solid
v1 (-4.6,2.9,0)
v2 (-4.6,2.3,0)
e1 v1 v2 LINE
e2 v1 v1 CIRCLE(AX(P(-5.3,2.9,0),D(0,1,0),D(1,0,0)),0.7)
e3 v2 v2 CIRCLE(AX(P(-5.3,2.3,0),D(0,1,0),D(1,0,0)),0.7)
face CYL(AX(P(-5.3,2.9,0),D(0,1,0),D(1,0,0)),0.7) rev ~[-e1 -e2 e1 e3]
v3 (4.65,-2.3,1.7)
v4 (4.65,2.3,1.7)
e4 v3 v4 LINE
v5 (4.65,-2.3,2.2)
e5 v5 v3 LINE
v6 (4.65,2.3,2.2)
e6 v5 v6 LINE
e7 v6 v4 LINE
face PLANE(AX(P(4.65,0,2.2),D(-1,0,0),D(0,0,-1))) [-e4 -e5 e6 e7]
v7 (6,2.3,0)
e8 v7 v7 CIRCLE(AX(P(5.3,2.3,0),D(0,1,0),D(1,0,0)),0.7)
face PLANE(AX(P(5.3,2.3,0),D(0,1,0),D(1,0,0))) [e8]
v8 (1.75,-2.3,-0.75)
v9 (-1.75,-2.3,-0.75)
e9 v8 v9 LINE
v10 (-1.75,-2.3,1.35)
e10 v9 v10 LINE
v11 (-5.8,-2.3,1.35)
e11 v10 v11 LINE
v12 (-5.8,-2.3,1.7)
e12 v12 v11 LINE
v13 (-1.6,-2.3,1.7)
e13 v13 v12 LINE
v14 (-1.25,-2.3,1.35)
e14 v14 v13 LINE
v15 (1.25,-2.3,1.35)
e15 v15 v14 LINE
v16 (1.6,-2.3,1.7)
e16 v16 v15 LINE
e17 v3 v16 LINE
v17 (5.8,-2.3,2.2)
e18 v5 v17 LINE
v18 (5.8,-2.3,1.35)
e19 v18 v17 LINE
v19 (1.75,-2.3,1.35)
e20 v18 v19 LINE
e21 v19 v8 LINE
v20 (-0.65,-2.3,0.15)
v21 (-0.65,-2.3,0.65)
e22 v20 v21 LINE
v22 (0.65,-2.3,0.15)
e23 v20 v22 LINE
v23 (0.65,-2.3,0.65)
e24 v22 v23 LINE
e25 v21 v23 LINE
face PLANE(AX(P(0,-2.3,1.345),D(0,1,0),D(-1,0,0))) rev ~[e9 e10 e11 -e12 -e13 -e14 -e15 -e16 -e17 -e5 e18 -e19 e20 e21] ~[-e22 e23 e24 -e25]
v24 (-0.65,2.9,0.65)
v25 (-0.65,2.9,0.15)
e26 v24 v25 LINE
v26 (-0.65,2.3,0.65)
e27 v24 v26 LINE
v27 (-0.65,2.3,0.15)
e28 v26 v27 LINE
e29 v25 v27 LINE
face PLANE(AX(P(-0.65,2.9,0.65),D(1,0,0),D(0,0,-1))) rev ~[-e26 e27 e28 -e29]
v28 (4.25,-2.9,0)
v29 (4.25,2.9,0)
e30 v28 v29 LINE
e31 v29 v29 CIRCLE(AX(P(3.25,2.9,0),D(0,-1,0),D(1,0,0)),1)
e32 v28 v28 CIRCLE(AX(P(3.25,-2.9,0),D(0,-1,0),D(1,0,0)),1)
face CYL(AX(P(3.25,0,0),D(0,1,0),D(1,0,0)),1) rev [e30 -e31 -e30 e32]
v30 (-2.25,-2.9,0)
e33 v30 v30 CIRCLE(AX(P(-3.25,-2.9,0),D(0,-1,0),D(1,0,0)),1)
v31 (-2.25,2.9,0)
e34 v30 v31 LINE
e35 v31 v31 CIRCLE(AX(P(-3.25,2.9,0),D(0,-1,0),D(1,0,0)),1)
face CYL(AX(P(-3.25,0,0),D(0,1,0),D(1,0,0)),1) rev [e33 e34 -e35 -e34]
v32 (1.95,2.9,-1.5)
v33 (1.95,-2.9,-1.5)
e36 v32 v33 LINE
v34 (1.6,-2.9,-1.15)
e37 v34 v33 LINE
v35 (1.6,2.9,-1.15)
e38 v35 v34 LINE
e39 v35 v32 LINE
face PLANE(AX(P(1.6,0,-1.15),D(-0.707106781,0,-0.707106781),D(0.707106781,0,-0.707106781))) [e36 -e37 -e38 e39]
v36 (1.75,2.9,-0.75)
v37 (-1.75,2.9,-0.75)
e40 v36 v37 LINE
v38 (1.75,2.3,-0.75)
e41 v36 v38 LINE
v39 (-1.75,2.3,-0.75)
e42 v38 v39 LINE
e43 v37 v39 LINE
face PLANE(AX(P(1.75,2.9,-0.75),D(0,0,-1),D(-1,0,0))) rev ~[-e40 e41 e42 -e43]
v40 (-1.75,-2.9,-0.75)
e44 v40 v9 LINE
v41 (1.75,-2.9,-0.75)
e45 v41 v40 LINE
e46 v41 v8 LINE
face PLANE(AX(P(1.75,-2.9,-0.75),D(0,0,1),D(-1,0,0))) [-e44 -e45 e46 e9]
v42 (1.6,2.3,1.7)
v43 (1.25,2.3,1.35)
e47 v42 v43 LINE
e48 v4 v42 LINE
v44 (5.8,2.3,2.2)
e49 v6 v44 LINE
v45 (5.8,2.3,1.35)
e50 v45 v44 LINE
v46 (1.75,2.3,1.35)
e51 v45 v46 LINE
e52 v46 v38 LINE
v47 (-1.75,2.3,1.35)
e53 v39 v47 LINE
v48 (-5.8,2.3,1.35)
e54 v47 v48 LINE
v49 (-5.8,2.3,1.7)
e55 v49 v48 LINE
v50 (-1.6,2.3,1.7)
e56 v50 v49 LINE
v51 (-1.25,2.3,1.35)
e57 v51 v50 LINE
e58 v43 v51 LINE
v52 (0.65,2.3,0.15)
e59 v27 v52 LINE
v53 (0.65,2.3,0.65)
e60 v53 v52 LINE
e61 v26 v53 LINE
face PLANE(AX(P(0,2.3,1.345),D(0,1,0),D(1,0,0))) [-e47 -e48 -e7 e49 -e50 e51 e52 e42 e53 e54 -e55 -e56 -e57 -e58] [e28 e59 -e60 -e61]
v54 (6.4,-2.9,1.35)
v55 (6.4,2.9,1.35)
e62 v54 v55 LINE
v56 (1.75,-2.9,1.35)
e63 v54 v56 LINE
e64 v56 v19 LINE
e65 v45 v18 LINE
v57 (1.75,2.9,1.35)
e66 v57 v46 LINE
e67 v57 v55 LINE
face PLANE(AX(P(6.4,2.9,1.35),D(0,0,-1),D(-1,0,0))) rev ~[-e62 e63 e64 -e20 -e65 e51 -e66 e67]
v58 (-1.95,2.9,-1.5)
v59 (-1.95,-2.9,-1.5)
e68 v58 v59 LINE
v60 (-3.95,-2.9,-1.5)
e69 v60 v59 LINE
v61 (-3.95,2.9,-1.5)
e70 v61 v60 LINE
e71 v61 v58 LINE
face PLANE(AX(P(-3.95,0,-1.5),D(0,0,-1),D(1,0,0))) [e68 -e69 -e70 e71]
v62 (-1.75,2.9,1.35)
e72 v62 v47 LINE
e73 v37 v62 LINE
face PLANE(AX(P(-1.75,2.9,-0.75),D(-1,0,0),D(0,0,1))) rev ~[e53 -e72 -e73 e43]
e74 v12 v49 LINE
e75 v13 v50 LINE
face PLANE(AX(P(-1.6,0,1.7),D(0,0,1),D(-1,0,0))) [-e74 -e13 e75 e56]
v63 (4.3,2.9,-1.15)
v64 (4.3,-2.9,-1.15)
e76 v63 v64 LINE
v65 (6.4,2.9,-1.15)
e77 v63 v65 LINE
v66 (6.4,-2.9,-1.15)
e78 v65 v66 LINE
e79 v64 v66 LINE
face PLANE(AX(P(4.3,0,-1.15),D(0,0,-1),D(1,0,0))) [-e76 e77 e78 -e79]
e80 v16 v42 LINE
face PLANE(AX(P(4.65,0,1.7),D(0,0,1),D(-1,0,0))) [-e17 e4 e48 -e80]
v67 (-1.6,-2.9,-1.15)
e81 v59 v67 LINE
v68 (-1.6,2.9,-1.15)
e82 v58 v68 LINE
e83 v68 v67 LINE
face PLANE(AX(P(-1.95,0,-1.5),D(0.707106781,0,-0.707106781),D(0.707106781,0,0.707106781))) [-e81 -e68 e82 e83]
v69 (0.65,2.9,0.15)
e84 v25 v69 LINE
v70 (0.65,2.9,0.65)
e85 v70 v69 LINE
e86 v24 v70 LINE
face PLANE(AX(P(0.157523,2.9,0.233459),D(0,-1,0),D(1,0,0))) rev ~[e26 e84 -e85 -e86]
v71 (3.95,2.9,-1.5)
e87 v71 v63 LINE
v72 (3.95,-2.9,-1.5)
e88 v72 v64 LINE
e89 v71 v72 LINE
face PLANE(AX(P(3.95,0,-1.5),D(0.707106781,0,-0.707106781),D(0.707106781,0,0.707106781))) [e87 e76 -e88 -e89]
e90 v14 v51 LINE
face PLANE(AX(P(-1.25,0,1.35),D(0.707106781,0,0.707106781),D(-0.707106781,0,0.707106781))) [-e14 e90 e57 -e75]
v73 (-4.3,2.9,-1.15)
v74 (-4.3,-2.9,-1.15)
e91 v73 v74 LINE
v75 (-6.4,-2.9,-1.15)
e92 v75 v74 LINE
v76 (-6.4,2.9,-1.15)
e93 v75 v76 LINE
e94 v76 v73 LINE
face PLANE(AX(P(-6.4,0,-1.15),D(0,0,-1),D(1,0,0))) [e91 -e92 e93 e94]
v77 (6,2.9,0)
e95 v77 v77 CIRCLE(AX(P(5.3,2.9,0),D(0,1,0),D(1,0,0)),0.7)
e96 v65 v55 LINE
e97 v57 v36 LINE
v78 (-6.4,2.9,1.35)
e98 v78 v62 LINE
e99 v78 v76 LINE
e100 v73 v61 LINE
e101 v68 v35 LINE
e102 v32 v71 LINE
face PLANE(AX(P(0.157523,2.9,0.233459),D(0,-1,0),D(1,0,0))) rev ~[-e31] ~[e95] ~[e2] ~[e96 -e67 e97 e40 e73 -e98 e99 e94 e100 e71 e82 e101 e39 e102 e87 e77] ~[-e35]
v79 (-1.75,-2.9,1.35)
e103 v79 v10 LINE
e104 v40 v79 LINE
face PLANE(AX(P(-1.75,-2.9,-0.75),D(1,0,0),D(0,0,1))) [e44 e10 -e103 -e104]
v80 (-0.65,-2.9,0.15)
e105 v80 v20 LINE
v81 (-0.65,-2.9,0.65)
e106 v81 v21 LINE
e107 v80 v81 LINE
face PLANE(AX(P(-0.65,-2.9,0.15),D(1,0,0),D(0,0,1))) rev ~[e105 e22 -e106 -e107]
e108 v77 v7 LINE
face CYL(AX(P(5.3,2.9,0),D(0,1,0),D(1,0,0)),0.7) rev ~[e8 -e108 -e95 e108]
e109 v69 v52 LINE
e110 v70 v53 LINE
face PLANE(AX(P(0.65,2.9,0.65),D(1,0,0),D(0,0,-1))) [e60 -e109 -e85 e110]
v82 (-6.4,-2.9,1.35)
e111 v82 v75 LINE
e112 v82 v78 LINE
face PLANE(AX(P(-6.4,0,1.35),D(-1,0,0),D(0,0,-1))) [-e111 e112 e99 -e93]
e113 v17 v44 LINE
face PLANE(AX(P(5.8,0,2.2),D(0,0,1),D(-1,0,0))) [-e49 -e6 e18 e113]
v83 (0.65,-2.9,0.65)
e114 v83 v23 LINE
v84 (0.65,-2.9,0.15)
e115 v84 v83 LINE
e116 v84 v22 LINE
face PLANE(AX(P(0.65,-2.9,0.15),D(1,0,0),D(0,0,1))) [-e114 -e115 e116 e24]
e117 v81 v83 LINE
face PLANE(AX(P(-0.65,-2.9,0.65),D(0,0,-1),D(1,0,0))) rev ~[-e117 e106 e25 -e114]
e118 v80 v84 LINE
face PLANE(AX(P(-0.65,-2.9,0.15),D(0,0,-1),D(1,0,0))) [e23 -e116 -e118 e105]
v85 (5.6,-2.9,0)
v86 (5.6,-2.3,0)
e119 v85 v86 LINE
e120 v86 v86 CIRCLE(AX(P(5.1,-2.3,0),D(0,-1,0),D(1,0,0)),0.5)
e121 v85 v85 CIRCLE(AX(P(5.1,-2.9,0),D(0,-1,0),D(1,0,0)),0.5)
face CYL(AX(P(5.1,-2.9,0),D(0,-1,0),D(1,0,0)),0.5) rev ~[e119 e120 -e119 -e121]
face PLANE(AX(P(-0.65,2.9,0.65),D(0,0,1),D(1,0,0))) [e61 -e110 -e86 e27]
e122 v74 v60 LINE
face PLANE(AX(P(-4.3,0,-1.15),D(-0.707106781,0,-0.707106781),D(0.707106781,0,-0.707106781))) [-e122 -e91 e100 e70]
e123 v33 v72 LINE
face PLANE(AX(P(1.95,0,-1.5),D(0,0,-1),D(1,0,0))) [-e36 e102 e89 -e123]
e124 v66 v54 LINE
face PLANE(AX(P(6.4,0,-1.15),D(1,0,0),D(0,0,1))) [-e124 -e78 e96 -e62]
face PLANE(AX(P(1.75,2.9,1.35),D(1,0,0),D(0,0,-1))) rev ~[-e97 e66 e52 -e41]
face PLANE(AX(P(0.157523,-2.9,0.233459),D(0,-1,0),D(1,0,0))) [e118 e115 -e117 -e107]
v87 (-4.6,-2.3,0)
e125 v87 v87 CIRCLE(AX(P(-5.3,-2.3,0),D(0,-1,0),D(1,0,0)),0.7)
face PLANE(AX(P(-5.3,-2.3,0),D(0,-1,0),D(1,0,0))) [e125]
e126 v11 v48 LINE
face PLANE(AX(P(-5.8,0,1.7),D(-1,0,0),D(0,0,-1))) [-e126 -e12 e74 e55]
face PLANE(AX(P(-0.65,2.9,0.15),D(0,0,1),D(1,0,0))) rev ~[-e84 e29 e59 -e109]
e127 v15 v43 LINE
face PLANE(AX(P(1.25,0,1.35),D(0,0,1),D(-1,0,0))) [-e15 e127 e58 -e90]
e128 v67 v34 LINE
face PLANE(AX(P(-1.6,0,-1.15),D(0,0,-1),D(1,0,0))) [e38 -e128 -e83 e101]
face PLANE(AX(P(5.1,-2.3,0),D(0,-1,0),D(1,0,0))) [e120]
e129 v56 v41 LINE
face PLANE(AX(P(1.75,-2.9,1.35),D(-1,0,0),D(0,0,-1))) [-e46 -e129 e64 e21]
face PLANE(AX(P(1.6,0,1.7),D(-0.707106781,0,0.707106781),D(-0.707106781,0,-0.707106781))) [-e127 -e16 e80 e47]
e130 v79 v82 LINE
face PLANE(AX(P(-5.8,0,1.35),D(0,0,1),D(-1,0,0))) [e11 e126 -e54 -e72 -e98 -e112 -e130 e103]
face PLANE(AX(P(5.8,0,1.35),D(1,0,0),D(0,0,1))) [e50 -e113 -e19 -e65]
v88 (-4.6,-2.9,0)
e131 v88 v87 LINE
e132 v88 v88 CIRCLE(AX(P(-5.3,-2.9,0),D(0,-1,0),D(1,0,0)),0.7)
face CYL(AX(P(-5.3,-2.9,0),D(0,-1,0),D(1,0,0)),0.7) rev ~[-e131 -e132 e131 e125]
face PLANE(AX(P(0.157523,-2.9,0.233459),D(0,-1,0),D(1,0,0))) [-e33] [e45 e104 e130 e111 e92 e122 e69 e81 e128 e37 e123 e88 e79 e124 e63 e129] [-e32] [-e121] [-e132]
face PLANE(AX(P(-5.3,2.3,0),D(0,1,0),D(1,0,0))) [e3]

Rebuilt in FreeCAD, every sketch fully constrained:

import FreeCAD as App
import Part
import Sketcher

doc = App.newDocument("Part")
body = doc.addObject("PartDesign::Body", "Body")

sketch1 = body.newObject("Sketcher::SketchObject", "Sketch")
sketch1.AttachmentSupport = (doc.getObject("XZ_Plane"), [""])
sketch1.MapMode = "FlatFace"
sketch1.addGeometry([
    Part.LineSegment(App.Vector(-6.4, -1.15, 0), App.Vector(-4.3, -1.15, 0)),
    Part.LineSegment(App.Vector(-4.3, -1.15, 0), App.Vector(-3.95, -1.5, 0)),
    Part.LineSegment(App.Vector(-3.95, -1.5, 0), App.Vector(-1.95, -1.5, 0)),
    Part.LineSegment(App.Vector(-1.95, -1.5, 0), App.Vector(-1.6, -1.15, 0)),
    Part.LineSegment(App.Vector(-1.6, -1.15, 0), App.Vector(1.6, -1.15, 0)),
    Part.LineSegment(App.Vector(1.6, -1.15, 0), App.Vector(1.95, -1.5, 0)),
    Part.LineSegment(App.Vector(1.95, -1.5, 0), App.Vector(3.95, -1.5, 0)),
    Part.LineSegment(App.Vector(3.95, -1.5, 0), App.Vector(4.3, -1.15, 0)),
    Part.LineSegment(App.Vector(4.3, -1.15, 0), App.Vector(6.4, -1.15, 0)),
    Part.LineSegment(App.Vector(6.4, -1.15, 0), App.Vector(6.4, 1.35, 0)),
    Part.LineSegment(App.Vector(6.4, 1.35, 0), App.Vector(5.8, 1.35, 0)),
    Part.LineSegment(App.Vector(5.8, 1.35, 0), App.Vector(5.8, 2.2, 0)),
    Part.LineSegment(App.Vector(5.8, 2.2, 0), App.Vector(4.65, 2.2, 0)),
    Part.LineSegment(App.Vector(4.65, 2.2, 0), App.Vector(4.65, 1.7, 0)),
    Part.LineSegment(App.Vector(4.65, 1.7, 0), App.Vector(1.6, 1.7, 0)),
    Part.LineSegment(App.Vector(1.6, 1.7, 0), App.Vector(1.25, 1.35, 0)),
    Part.LineSegment(App.Vector(1.25, 1.35, 0), App.Vector(-1.25, 1.35, 0)),
    Part.LineSegment(App.Vector(-1.25, 1.35, 0), App.Vector(-1.6, 1.7, 0)),
    Part.LineSegment(App.Vector(-1.6, 1.7, 0), App.Vector(-5.8, 1.7, 0)),
    Part.LineSegment(App.Vector(-5.8, 1.7, 0), App.Vector(-5.8, 1.35, 0)),
    Part.LineSegment(App.Vector(-5.8, 1.35, 0), App.Vector(-6.4, 1.35, 0)),
    Part.LineSegment(App.Vector(-6.4, 1.35, 0), App.Vector(-6.4, -1.15, 0)),
    Part.Circle(App.Vector(-3.25, 0, 0), App.Vector(0, 0, 1), 1),
    Part.Circle(App.Vector(3.25, 0, 0), App.Vector(0, 0, 1), 1),
], False)
sketch1.addConstraint([
    Sketcher.Constraint("Coincident", 0, 2, 1, 1),
    Sketcher.Constraint("Coincident", 1, 2, 2, 1),
    Sketcher.Constraint("Coincident", 2, 2, 3, 1),
    Sketcher.Constraint("Coincident", 3, 2, 4, 1),
    Sketcher.Constraint("Coincident", 4, 2, 5, 1),
    Sketcher.Constraint("Coincident", 5, 2, 6, 1),
    Sketcher.Constraint("Coincident", 6, 2, 7, 1),
    Sketcher.Constraint("Coincident", 7, 2, 8, 1),
    Sketcher.Constraint("Coincident", 8, 2, 9, 1),
    Sketcher.Constraint("Coincident", 9, 2, 10, 1),
    Sketcher.Constraint("Coincident", 10, 2, 11, 1),
    Sketcher.Constraint("Coincident", 11, 2, 12, 1),
    Sketcher.Constraint("Coincident", 12, 2, 13, 1),
    Sketcher.Constraint("Coincident", 13, 2, 14, 1),
    Sketcher.Constraint("Coincident", 14, 2, 15, 1),
    Sketcher.Constraint("Coincident", 15, 2, 16, 1),
    Sketcher.Constraint("Coincident", 16, 2, 17, 1),
    Sketcher.Constraint("Coincident", 17, 2, 18, 1),
    Sketcher.Constraint("Coincident", 18, 2, 19, 1),
    Sketcher.Constraint("Coincident", 19, 2, 20, 1),
    Sketcher.Constraint("Coincident", 20, 2, 21, 1),
    Sketcher.Constraint("Coincident", 21, 2, 0, 1),
    Sketcher.Constraint("Horizontal", 0),
    Sketcher.Constraint("Horizontal", 2),
    Sketcher.Constraint("Horizontal", 4),
    Sketcher.Constraint("Horizontal", 6),
    Sketcher.Constraint("Horizontal", 8),
    Sketcher.Constraint("Vertical", 9),
    Sketcher.Constraint("Horizontal", 10),
    Sketcher.Constraint("Vertical", 11),
    Sketcher.Constraint("Horizontal", 12),
    Sketcher.Constraint("Vertical", 13),
    Sketcher.Constraint("Horizontal", 14),
    Sketcher.Constraint("Horizontal", 16),
    Sketcher.Constraint("Horizontal", 18),
    Sketcher.Constraint("Vertical", 19),
    Sketcher.Constraint("Horizontal", 20),
    Sketcher.Constraint("Vertical", 21),
    Sketcher.Constraint("Equal", 22, 23),
    Sketcher.Constraint("Symmetric", 22, 3, 23, 3, -1, 1),
    Sketcher.Constraint("Symmetric", 2, 2, 5, 2, -2),
    Sketcher.Constraint("Symmetric", 0, 2, 7, 2, -2),
    Sketcher.Constraint("Symmetric", 14, 2, 17, 2, -2),
    Sketcher.Constraint("Symmetric", 10, 2, 19, 2, -2),
    Sketcher.Constraint("PointOnObject", 22, 3, -1),
    Sketcher.Constraint("Perpendicular", 1, 3),
    Sketcher.Constraint("Perpendicular", 3, 5),
    Sketcher.Constraint("Perpendicular", 5, 7),
    Sketcher.Constraint("Parallel", 7, 15),
    Sketcher.Constraint("Perpendicular", 15, 17),
    Sketcher.Constraint("Horizontal", 0, 2, 3, 2),
    Sketcher.Constraint("Horizontal", 10, 2, 15, 2),
    Sketcher.Constraint("Vertical", 4, 2, 14, 2),
    Sketcher.Constraint("Vertical", 3, 2, 17, 2),
    Sketcher.Constraint("Equal", 0, 8),
    Sketcher.Constraint("Equal", 16, 9),
    Sketcher.Constraint("Equal", 7, 15),
    Sketcher.Constraint("Diameter", 22, 2.0),
    Sketcher.Constraint("DistanceX", 2, 1, 2, 2, 2.0),
    Sketcher.Constraint("DistanceX", 0, 1, 0, 2, 2.1),
    Sketcher.Constraint("DistanceX", 4, 1, 4, 2, 3.2),
    Sketcher.Constraint("DistanceX", 10, 2, 10, 1, 0.6),
    Sketcher.Constraint("DistanceX", 16, 2, 16, 1, 2.5),
    Sketcher.Constraint("DistanceY", 13, 2, 13, 1, 0.5),
    Sketcher.Constraint("DistanceX", 15, 2, 23, 3, 2.0),
    Sketcher.Constraint("DistanceX", 12, 2, 12, 1, 1.15),
    Sketcher.Constraint("DistanceY", 1, 2, -1, 1, 1.5),
])
pad1 = body.newObject("PartDesign::Pad", "Pad")
pad1.Profile = sketch1
pad1.Length = 5.8
pad1.Midplane = True

sketch2 = body.newObject("Sketcher::SketchObject", "Sketch001")
sketch2.AttachmentSupport = (doc.getObject("XZ_Plane"), [""])
sketch2.MapMode = "FlatFace"
sketch2.AttachmentOffset = App.Placement(App.Vector(0, 0, 2.9), App.Rotation())
sketch2.addGeometry([
    Part.Circle(App.Vector(-5.3, 0, 0), App.Vector(0, 0, 1), 0.7),
    Part.Circle(App.Vector(5.1, 0, 0), App.Vector(0, 0, 1), 0.5),
    Part.LineSegment(App.Vector(1.8, -0.8, 0), App.Vector(1.8, 1.4, 0)),
    Part.LineSegment(App.Vector(1.8, 1.4, 0), App.Vector(6.4, 1.4, 0)),
    Part.LineSegment(App.Vector(6.4, 1.4, 0), App.Vector(6.4, 2.2, 0)),
    Part.LineSegment(App.Vector(6.4, 2.2, 0), App.Vector(-6.4, 2.2, 0)),
    Part.LineSegment(App.Vector(-6.4, 2.2, 0), App.Vector(-6.4, 1.4, 0)),
    Part.LineSegment(App.Vector(-6.4, 1.4, 0), App.Vector(-1.8, 1.4, 0)),
    Part.LineSegment(App.Vector(-1.8, 1.4, 0), App.Vector(-1.8, -0.8, 0)),
    Part.LineSegment(App.Vector(-1.8, -0.8, 0), App.Vector(1.8, -0.8, 0)),
    Part.LineSegment(App.Vector(-0.7, 0.1, 0), App.Vector(-0.7, 0.7, 0)),
    Part.LineSegment(App.Vector(-0.7, 0.7, 0), App.Vector(0.7, 0.7, 0)),
    Part.LineSegment(App.Vector(0.7, 0.7, 0), App.Vector(0.7, 0.1, 0)),
    Part.LineSegment(App.Vector(0.7, 0.1, 0), App.Vector(-0.7, 0.1, 0)),
], False)
sketch2.addConstraint([
    Sketcher.Constraint("Coincident", 2, 2, 3, 1),
    Sketcher.Constraint("Coincident", 3, 2, 4, 1),
    Sketcher.Constraint("Coincident", 4, 2, 5, 1),
    Sketcher.Constraint("Coincident", 5, 2, 6, 1),
    Sketcher.Constraint("Coincident", 6, 2, 7, 1),
    Sketcher.Constraint("Coincident", 7, 2, 8, 1),
    Sketcher.Constraint("Coincident", 8, 2, 9, 1),
    Sketcher.Constraint("Coincident", 9, 2, 2, 1),
    Sketcher.Constraint("Coincident", 10, 2, 11, 1),
    Sketcher.Constraint("Coincident", 11, 2, 12, 1),
    Sketcher.Constraint("Coincident", 12, 2, 13, 1),
    Sketcher.Constraint("Coincident", 13, 2, 10, 1),
    Sketcher.Constraint("Vertical", 2),
    Sketcher.Constraint("Horizontal", 3),
    Sketcher.Constraint("Vertical", 4),
    Sketcher.Constraint("Horizontal", 5),
    Sketcher.Constraint("Vertical", 6),
    Sketcher.Constraint("Horizontal", 7),
    Sketcher.Constraint("Vertical", 8),
    Sketcher.Constraint("Horizontal", 9),
    Sketcher.Constraint("Vertical", 10),
    Sketcher.Constraint("Horizontal", 11),
    Sketcher.Constraint("Vertical", 12),
    Sketcher.Constraint("Horizontal", 13),
    Sketcher.Constraint("Symmetric", 3, 2, 6, 2, -2),
    Sketcher.Constraint("PointOnObject", 0, 3, -1),
    Sketcher.Constraint("PointOnObject", 1, 3, -1),
    Sketcher.Constraint("Equal", 3, 7),
    Sketcher.Constraint("Diameter", 1, 1.0),
    Sketcher.Constraint("Diameter", 0, 1.4),
    Sketcher.Constraint("DistanceX", 5, 2, 5, 1, 12.8),
    Sketcher.Constraint("DistanceX", 9, 1, 9, 2, 3.5),
    Sketcher.Constraint("DistanceX", 11, 1, 11, 2, 1.3),
    Sketcher.Constraint("DistanceY", 2, 1, 2, 2, 2.1),
    Sketcher.Constraint("DistanceY", 10, 1, 10, 2, 0.5),
    Sketcher.Constraint("DistanceY", 4, 1, 4, 2, 0.85),
    Sketcher.Constraint("DistanceX", 0, 3, -1, 1, 5.3),
    Sketcher.Constraint("DistanceX", -1, 1, 1, 3, 5.1),
    Sketcher.Constraint("DistanceY", -1, 1, 4, 2, 2.2),
    Sketcher.Constraint("DistanceX", 7, 2, 10, 2, 1.1),
    Sketcher.Constraint("DistanceY", 10, 2, 7, 2, 0.7),
])
pocket1 = body.newObject("PartDesign::Pocket", "Pocket")
pocket1.Profile = sketch2
pocket1.Length = 0.6

sketch3 = body.newObject("Sketcher::SketchObject", "Sketch002")
sketch3.AttachmentSupport = (doc.getObject("XZ_Plane"), [""])
sketch3.MapMode = "FlatFace"
sketch3.AttachmentOffset = App.Placement(App.Vector(0, 0, -2.9), App.Rotation())
sketch3.addGeometry([
    Part.Circle(App.Vector(5.3, 0, 0), App.Vector(0, 0, 1), 0.7),
    Part.Circle(App.Vector(-5.3, 0, 0), App.Vector(0, 0, 1), 0.7),
    Part.LineSegment(App.Vector(1.8, -0.8, 0), App.Vector(-1.8, -0.8, 0)),
    Part.LineSegment(App.Vector(-1.8, -0.8, 0), App.Vector(-1.8, 1.4, 0)),
    Part.LineSegment(App.Vector(-1.8, 1.4, 0), App.Vector(-6.4, 1.4, 0)),
    Part.LineSegment(App.Vector(-6.4, 1.4, 0), App.Vector(-6.4, 2.2, 0)),
    Part.LineSegment(App.Vector(-6.4, 2.2, 0), App.Vector(6.4, 2.2, 0)),
    Part.LineSegment(App.Vector(6.4, 2.2, 0), App.Vector(6.4, 1.4, 0)),
    Part.LineSegment(App.Vector(6.4, 1.4, 0), App.Vector(1.8, 1.4, 0)),
    Part.LineSegment(App.Vector(1.8, 1.4, 0), App.Vector(1.8, -0.8, 0)),
    Part.LineSegment(App.Vector(0.7, 0.7, 0), App.Vector(-0.7, 0.7, 0)),
    Part.LineSegment(App.Vector(-0.7, 0.7, 0), App.Vector(-0.7, 0.1, 0)),
    Part.LineSegment(App.Vector(-0.7, 0.1, 0), App.Vector(0.7, 0.1, 0)),
    Part.LineSegment(App.Vector(0.7, 0.1, 0), App.Vector(0.7, 0.7, 0)),
], False)
sketch3.addConstraint([
    Sketcher.Constraint("Coincident", 2, 2, 3, 1),
    Sketcher.Constraint("Coincident", 3, 2, 4, 1),
    Sketcher.Constraint("Coincident", 4, 2, 5, 1),
    Sketcher.Constraint("Coincident", 5, 2, 6, 1),
    Sketcher.Constraint("Coincident", 6, 2, 7, 1),
    Sketcher.Constraint("Coincident", 7, 2, 8, 1),
    Sketcher.Constraint("Coincident", 8, 2, 9, 1),
    Sketcher.Constraint("Coincident", 9, 2, 2, 1),
    Sketcher.Constraint("Coincident", 10, 2, 11, 1),
    Sketcher.Constraint("Coincident", 11, 2, 12, 1),
    Sketcher.Constraint("Coincident", 12, 2, 13, 1),
    Sketcher.Constraint("Coincident", 13, 2, 10, 1),
    Sketcher.Constraint("Horizontal", 2),
    Sketcher.Constraint("Vertical", 3),
    Sketcher.Constraint("Horizontal", 4),
    Sketcher.Constraint("Vertical", 5),
    Sketcher.Constraint("Horizontal", 6),
    Sketcher.Constraint("Vertical", 7),
    Sketcher.Constraint("Horizontal", 8),
    Sketcher.Constraint("Vertical", 9),
    Sketcher.Constraint("Horizontal", 10),
    Sketcher.Constraint("Vertical", 11),
    Sketcher.Constraint("Horizontal", 12),
    Sketcher.Constraint("Vertical", 13),
    Sketcher.Constraint("Equal", 0, 1),
    Sketcher.Constraint("Symmetric", 0, 3, 1, 3, -1, 1),
    Sketcher.Constraint("Symmetric", 4, 2, 7, 2, -2),
    Sketcher.Constraint("PointOnObject", 0, 3, -1),
    Sketcher.Constraint("Equal", 4, 8),
    Sketcher.Constraint("Diameter", 0, 1.4),
    Sketcher.Constraint("DistanceX", 2, 2, 2, 1, 3.5),
    Sketcher.Constraint("DistanceX", 6, 1, 6, 2, 12.8),
    Sketcher.Constraint("DistanceX", 10, 2, 10, 1, 1.3),
    Sketcher.Constraint("DistanceY", 3, 1, 3, 2, 2.1),
    Sketcher.Constraint("DistanceY", 11, 2, 11, 1, 0.5),
    Sketcher.Constraint("DistanceY", 5, 1, 5, 2, 0.85),
    Sketcher.Constraint("DistanceX", -1, 1, 0, 3, 5.3),
    Sketcher.Constraint("DistanceY", -1, 1, 5, 2, 2.2),
    Sketcher.Constraint("DistanceX", 3, 2, 10, 2, 1.1),
    Sketcher.Constraint("DistanceY", 10, 2, 3, 2, 0.7),
])
pocket2 = body.newObject("PartDesign::Pocket", "Pocket001")
pocket2.Profile = sketch3
pocket2.Length = 0.6
pocket2.Reversed = True

doc.recompute()
